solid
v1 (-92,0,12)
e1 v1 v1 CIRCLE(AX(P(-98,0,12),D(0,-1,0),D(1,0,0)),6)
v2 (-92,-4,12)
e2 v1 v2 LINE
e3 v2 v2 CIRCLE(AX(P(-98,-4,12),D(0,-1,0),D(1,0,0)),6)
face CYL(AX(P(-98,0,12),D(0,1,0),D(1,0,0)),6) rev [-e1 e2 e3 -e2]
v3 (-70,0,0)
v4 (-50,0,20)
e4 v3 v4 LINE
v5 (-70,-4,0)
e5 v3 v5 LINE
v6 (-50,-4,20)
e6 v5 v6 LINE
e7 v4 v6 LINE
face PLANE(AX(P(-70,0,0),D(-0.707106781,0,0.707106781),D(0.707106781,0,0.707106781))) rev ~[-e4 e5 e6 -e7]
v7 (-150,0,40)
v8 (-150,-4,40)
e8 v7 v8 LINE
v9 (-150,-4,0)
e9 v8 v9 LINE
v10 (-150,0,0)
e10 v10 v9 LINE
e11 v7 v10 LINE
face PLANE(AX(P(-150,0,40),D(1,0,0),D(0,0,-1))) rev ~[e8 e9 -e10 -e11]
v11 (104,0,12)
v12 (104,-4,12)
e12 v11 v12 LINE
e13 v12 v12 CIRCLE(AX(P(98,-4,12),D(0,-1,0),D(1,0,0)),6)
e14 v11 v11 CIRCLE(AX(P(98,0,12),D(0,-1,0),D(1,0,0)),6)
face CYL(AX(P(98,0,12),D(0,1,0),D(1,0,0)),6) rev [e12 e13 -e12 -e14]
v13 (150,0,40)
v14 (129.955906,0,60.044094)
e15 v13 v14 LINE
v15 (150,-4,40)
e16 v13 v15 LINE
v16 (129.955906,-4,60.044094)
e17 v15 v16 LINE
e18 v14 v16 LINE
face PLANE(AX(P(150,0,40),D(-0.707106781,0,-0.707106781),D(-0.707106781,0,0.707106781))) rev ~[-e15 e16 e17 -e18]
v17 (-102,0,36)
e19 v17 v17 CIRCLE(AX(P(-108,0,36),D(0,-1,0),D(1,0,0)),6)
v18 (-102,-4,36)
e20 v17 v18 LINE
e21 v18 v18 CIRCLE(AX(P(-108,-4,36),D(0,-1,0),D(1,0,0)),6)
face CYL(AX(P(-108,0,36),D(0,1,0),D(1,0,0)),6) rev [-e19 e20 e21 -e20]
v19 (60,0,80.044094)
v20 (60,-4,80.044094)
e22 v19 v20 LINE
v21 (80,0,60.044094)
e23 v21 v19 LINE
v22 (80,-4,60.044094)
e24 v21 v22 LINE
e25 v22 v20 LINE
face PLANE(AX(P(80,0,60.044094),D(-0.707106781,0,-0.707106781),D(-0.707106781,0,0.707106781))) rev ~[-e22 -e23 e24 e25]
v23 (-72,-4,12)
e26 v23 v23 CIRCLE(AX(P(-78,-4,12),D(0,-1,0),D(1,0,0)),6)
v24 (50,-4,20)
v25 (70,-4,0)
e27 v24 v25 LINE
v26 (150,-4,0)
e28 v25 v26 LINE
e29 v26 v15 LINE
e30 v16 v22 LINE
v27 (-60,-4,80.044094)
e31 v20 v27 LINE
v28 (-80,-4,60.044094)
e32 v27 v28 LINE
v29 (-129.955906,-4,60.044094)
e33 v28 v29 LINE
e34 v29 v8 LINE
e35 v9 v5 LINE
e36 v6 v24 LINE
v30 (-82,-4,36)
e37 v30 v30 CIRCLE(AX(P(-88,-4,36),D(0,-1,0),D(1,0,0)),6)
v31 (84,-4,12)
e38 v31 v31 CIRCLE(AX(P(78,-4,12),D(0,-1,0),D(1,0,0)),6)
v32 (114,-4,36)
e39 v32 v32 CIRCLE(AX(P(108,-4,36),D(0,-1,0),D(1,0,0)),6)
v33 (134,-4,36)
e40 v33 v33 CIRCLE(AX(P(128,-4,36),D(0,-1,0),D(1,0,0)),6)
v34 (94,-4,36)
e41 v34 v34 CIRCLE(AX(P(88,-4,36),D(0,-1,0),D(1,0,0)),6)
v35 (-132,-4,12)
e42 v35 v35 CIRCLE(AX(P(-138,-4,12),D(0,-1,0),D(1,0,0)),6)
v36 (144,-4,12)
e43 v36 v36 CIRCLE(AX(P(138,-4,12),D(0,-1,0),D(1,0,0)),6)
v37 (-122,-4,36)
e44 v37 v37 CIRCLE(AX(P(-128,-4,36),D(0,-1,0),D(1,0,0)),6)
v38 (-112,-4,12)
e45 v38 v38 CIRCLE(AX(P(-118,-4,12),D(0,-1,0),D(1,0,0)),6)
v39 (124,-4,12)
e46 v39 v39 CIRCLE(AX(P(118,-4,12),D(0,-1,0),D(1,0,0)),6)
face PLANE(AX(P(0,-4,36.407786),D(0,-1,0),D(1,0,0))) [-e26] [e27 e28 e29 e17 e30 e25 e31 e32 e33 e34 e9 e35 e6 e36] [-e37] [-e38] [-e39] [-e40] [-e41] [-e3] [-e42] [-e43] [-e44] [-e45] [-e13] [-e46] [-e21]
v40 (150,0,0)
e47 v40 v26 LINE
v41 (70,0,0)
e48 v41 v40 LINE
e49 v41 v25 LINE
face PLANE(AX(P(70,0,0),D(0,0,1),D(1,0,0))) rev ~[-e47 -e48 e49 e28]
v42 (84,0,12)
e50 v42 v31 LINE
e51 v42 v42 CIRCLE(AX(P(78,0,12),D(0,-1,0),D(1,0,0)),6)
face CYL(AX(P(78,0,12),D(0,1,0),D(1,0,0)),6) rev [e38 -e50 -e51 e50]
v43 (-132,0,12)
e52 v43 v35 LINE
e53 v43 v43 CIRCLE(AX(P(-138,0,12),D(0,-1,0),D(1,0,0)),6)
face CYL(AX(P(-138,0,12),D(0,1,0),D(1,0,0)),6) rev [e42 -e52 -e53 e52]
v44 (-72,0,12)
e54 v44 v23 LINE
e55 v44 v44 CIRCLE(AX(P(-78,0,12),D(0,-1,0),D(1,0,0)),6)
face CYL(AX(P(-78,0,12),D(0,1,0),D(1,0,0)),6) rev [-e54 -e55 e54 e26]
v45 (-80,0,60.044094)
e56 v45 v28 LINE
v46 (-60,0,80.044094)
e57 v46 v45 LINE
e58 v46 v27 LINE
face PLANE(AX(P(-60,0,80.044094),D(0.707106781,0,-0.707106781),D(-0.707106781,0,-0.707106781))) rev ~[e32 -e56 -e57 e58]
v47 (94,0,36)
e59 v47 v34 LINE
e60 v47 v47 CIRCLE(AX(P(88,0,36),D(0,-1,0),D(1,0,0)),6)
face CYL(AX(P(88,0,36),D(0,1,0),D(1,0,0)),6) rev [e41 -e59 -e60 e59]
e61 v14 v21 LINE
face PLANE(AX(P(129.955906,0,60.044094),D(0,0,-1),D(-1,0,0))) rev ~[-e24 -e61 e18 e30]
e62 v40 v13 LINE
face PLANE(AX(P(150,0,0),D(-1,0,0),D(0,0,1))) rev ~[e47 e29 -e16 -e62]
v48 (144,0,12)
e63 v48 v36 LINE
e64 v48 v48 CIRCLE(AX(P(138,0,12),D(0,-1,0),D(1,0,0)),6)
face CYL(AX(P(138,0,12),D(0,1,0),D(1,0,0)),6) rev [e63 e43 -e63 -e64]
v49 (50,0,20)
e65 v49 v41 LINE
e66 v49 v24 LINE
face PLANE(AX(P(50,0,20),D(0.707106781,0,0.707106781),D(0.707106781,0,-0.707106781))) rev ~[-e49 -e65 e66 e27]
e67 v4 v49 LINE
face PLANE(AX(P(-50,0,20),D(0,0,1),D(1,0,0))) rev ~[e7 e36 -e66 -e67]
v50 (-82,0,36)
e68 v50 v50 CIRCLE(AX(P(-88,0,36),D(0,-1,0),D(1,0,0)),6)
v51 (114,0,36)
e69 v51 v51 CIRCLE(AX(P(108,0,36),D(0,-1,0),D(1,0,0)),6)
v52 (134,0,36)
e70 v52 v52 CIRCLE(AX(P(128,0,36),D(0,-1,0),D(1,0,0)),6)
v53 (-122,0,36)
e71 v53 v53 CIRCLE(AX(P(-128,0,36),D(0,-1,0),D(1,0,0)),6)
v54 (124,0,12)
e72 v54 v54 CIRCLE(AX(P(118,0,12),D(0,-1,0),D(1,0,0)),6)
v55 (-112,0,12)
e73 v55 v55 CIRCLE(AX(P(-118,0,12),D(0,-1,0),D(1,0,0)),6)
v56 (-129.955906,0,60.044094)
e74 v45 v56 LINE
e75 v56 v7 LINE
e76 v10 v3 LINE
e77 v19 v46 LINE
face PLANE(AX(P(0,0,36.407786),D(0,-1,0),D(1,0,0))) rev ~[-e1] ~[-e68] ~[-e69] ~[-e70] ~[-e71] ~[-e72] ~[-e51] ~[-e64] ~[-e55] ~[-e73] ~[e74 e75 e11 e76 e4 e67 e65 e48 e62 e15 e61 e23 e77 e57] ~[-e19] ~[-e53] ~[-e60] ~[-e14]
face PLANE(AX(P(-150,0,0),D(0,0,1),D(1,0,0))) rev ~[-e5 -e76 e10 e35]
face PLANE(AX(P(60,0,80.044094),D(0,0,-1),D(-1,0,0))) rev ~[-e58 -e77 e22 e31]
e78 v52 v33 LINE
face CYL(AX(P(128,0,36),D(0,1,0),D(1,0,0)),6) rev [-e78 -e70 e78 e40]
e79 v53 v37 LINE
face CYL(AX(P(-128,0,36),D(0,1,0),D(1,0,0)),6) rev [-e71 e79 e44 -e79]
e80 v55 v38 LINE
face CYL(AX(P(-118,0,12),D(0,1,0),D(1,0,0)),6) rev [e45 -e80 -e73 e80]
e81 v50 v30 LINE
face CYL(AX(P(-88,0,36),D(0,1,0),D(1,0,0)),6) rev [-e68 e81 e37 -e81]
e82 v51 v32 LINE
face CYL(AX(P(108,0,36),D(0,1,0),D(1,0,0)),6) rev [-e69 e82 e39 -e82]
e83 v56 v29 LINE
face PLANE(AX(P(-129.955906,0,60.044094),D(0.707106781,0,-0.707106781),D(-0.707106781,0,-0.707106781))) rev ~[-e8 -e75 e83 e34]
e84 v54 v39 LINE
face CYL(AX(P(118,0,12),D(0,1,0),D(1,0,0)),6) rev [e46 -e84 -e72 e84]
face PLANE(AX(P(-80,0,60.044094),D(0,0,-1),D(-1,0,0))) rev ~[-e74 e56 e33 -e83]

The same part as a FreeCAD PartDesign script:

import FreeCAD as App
import Part
import Sketcher
from FreeCAD import Vector


def add_polygon(sketch, points):
    """Adds a closed chain of lines whose ends are joined by coincident constraints."""
    first, n = sketch.GeometryCount, len(points)
    for a, b in zip(points, points[1:] + points[:1]):
        sketch.addGeometry(Part.LineSegment(App.Vector(*a, 0), App.Vector(*b, 0)), False)
    for i in range(n):
        sketch.addConstraint(Sketcher.Constraint("Coincident", first + i, 2, first + (i + 1) % n, 1))

doc = App.newDocument("Part")
params = doc.addObject("Spreadsheet::Sheet", "Params")
for row, (alias, value) in enumerate([
    ("sketch1_diameter", "12 mm"),
    ("sketch1_width", "80 mm"),
    ("sketch1_width2", "100 mm"),
    ("sketch1_width3", "120 mm"),
    ("sketch1_height", "40 mm"),
    ("pad1_length", "4 mm"),
], start=1):
    params.set(f"A{row}", alias)
    params.set(f"B{row}", "=" + value)
    params.setAlias(f"B{row}", alias)

body = doc.addObject("PartDesign::Body", "Body")

# Sketch on XZ plane
sketch1 = body.newObject("Sketcher::SketchObject", "Sketch")
sketch1.AttachmentSupport = (doc.getObject("XZ_Plane"), [""])
sketch1.MapMode = "FlatFace"
add_polygon(sketch1, [(-60, 80.044094), (-80, 60.044094), (-129.955906, 60.044094), (-150, 40), (-150, 0), (-70, 0), (-50, 20), (50, 20), (70, 0), (150, 0), (150, 40), (129.955906, 60.044094), (80, 60.044094), (60, 80.044094)])  # lines 0-13
sketch1.addGeometry(Part.Circle(Vector(-138, 12, 0), Vector(0, 0, 1), 6), False)  # 14
sketch1.addGeometry(Part.Circle(Vector(-118, 12, 0), Vector(0, 0, 1), 6), False)  # 15
sketch1.addGeometry(Part.Circle(Vector(-98, 12, 0), Vector(0, 0, 1), 6), False)  # 16
sketch1.addGeometry(Part.Circle(Vector(-78, 12, 0), Vector(0, 0, 1), 6), False)  # 17
sketch1.addGeometry(Part.Circle(Vector(78, 12, 0), Vector(0, 0, 1), 6), False)  # 18
sketch1.addGeometry(Part.Circle(Vector(98, 12, 0), Vector(0, 0, 1), 6), False)  # 19
sketch1.addGeometry(Part.Circle(Vector(118, 12, 0), Vector(0, 0, 1), 6), False)  # 20
sketch1.addGeometry(Part.Circle(Vector(138, 12, 0), Vector(0, 0, 1), 6), False)  # 21
sketch1.addGeometry(Part.Circle(Vector(-128, 36, 0), Vector(0, 0, 1), 6), False)  # 22
sketch1.addGeometry(Part.Circle(Vector(-108, 36, 0), Vector(0, 0, 1), 6), False)  # 23
sketch1.addGeometry(Part.Circle(Vector(-88, 36, 0), Vector(0, 0, 1), 6), False)  # 24
sketch1.addGeometry(Part.Circle(Vector(88, 36, 0), Vector(0, 0, 1), 6), False)  # 25
sketch1.addGeometry(Part.Circle(Vector(108, 36, 0), Vector(0, 0, 1), 6), False)  # 26
sketch1.addGeometry(Part.Circle(Vector(128, 36, 0), Vector(0, 0, 1), 6), False)  # 27
sketch1.addConstraint([
    Sketcher.Constraint("Horizontal", 1),
    Sketcher.Constraint("Vertical", 3),
    Sketcher.Constraint("Horizontal", 4),
    Sketcher.Constraint("Horizontal", 6),
    Sketcher.Constraint("Horizontal", 8),
    Sketcher.Constraint("Vertical", 9),
    Sketcher.Constraint("Horizontal", 11),
    Sketcher.Constraint("Horizontal", 13),
    Sketcher.Constraint("Equal", 14, 15),
    Sketcher.Constraint("Equal", 15, 16),
    Sketcher.Constraint("Equal", 16, 17),
    Sketcher.Constraint("Equal", 17, 18),
    Sketcher.Constraint("Equal", 18, 19),
    Sketcher.Constraint("Equal", 19, 20),
    Sketcher.Constraint("Equal", 20, 21),
    Sketcher.Constraint("Equal", 21, 22),
    Sketcher.Constraint("Equal", 22, 23),
    Sketcher.Constraint("Equal", 23, 24),
    Sketcher.Constraint("Equal", 24, 25),
    Sketcher.Constraint("Equal", 25, 26),
    Sketcher.Constraint("Equal", 26, 27),
    Sketcher.Constraint("Symmetric", 4, 2, 7, 2, -1, 1),
    Sketcher.Constraint("Symmetric", 17, 3, 18, 3, -2),
    Sketcher.Constraint("Symmetric", 16, 3, 19, 3, -2),
    Sketcher.Constraint("Symmetric", 15, 3, 20, 3, -2),
    Sketcher.Constraint("Symmetric", 14, 3, 21, 3, -2),
    Sketcher.Constraint("Symmetric", 24, 3, 25, 3, -2),
    Sketcher.Constraint("Symmetric", 23, 3, 26, 3, -2),
    Sketcher.Constraint("Symmetric", 22, 3, 27, 3, -2),
    Sketcher.Constraint("Symmetric", 3, 2, 8, 2, -2),
    Sketcher.Constraint("Symmetric", 1, 2, 10, 2, -2),
    Sketcher.Constraint("Parallel", 0, 2),
    Sketcher.Constraint("Parallel", 2, 5),
    Sketcher.Constraint("Perpendicular", 5, 7),
    Sketcher.Constraint("Parallel", 7, 10),
    Sketcher.Constraint("Parallel", 10, 12),
    Sketcher.Constraint("Horizontal", 14, 3, 15, 3),
    Sketcher.Constraint("Horizontal", 15, 3, 16, 3),
    Sketcher.Constraint("Horizontal", 16, 3, 17, 3),
    Sketcher.Constraint("Horizontal", 22, 3, 23, 3),
    Sketcher.Constraint("Horizontal", 23, 3, 24, 3),
    Sketcher.Constraint("Horizontal", 2, 2, 9, 2),
    Sketcher.Constraint("Equal", 1, 11),
    Sketcher.Constraint("Equal", 0, 5),
    Sketcher.Constraint("Diameter", 14, 12.0),
    Sketcher.Constraint("DistanceX", 4, 1, 4, 2, 80.0),
    Sketcher.Constraint("DistanceX", 6, 1, 6, 2, 100.0),
    Sketcher.Constraint("DistanceX", 13, 2, 13, 1, 120.0),
    Sketcher.Constraint("DistanceY", 3, 2, 3, 1, 40.0),
    Sketcher.Constraint("DistanceX", 14, 3, -1, 1, 138.0),
    Sketcher.Constraint("DistanceY", -1, 1, 14, 3, 12.0),
    Sketcher.Constraint("DistanceX", 15, 3, -1, 1, 118.0),
    Sketcher.Constraint("DistanceX", 16, 3, -1, 1, 98.0),
    Sketcher.Constraint("DistanceX", 17, 3, -1, 1, 78.0),
    Sketcher.Constraint("DistanceX", 22, 3, -1, 1, 128.0),
    Sketcher.Constraint("DistanceY", -1, 1, 22, 3, 36.0),
    Sketcher.Constraint("DistanceX", 23, 3, -1, 1, 108.0),
    Sketcher.Constraint("DistanceX", 24, 3, -1, 1, 88.0),
    Sketcher.Constraint("DistanceX", 0, 2, -1, 1, 80.0),
    Sketcher.Constraint("Distance", 2, 28.34663),
])
sketch1.setExpression("Constraints[58]", "Params.sketch1_diameter")
sketch1.setExpression("Constraints[59]", "Params.sketch1_width")
sketch1.setExpression("Constraints[60]", "Params.sketch1_width2")
sketch1.setExpression("Constraints[61]", "Params.sketch1_width3")
sketch1.setExpression("Constraints[62]", "Params.sketch1_height")
pad1 = body.newObject("PartDesign::Pad", "Pad")
pad1.Profile = sketch1
pad1.setExpression("Length", "Params.pad1_length")

doc.recompute()
